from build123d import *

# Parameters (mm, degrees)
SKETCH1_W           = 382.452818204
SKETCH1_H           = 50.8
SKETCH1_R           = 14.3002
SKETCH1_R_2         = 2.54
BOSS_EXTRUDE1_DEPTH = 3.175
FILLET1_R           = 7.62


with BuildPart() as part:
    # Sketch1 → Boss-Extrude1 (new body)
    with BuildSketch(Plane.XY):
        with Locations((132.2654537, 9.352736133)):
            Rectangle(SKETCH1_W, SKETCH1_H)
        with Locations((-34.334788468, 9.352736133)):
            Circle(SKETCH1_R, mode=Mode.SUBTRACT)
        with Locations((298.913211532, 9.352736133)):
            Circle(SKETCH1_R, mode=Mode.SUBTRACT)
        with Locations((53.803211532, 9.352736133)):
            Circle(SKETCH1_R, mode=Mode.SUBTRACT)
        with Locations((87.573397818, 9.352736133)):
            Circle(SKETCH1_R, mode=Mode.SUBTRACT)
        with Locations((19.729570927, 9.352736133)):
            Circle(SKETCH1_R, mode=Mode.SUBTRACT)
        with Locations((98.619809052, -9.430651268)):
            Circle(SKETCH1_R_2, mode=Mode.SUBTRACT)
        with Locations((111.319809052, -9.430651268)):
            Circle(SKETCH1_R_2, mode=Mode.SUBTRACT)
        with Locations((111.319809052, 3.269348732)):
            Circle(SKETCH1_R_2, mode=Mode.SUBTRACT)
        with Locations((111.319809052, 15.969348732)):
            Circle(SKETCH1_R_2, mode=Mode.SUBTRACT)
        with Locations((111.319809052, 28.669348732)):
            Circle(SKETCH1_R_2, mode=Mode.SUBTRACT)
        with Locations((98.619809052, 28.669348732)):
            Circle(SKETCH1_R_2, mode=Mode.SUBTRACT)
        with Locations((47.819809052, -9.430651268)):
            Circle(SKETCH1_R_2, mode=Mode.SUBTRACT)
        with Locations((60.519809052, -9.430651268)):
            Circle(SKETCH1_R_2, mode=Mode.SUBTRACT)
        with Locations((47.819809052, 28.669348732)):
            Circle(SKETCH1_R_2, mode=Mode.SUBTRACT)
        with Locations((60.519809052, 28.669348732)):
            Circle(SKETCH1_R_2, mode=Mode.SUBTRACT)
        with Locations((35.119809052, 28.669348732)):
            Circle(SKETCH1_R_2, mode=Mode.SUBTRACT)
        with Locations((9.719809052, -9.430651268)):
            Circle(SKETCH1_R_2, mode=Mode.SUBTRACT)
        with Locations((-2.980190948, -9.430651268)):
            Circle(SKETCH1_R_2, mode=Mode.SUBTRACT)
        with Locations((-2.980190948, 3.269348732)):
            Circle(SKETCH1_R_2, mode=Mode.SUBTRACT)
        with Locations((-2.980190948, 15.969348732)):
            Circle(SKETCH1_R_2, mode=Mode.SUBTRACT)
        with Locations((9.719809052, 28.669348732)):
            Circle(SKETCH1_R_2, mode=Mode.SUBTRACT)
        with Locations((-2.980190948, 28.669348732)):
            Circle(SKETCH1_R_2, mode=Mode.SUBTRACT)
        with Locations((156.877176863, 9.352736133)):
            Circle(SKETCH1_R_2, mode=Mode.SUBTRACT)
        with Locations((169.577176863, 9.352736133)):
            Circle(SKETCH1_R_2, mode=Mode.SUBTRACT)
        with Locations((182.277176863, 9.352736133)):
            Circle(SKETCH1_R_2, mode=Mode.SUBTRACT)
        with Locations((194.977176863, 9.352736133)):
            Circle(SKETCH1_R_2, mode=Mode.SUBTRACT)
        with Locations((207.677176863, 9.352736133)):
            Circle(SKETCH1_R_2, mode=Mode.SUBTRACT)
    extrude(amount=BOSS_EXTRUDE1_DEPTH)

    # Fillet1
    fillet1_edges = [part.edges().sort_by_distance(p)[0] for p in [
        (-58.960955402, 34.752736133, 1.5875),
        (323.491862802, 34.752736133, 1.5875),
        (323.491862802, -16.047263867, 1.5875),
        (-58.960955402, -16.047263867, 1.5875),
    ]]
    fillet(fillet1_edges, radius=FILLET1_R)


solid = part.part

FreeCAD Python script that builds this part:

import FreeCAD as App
import Part
import Sketcher

V = App.Vector
Q = App.Units.Quantity


def edges_at(feature, points):
    """Names of the edges that pass closest to the given points."""
    edges = feature.Shape.Edges
    near = lambda p: min(range(len(edges)), key=lambda i: edges[i].distToShape(Part.Vertex(*p))[0])
    return sorted({f"Edge{near(p) + 1}" for p in points})

doc = App.newDocument("Part")
body = doc.addObject("PartDesign::Body", "Body")

# Sketch on XY plane
sketch1 = body.newObject("Sketcher::SketchObject", "Sketch")
sketch1.AttachmentSupport = (doc.getObject("XY_Plane"), [""])
sketch1.MapMode = "FlatFace"
sketch1.addGeometry(Part.LineSegment(V(-58.960955, 34.752736, 0), V(-58.960955, -16.047264, 0)), False)
sketch1.addGeometry(Part.LineSegment(V(-58.960955, -16.047264, 0), V(323.491863, -16.047264, 0)), False)
sketch1.addGeometry(Part.LineSegment(V(323.491863, -16.047264, 0), V(323.491863, 34.752736, 0)), False)
sketch1.addGeometry(Part.LineSegment(V(323.491863, 34.752736, 0), V(-58.960955, 34.752736, 0)), False)
sketch1.addGeometry(Part.Circle(V(-2.980191, -9.430651, 0), V(0, 0, 1), 2.54), False)
sketch1.addGeometry(Part.Circle(V(9.719809, -9.430651, 0), V(0, 0, 1), 2.54), False)
sketch1.addGeometry(Part.Circle(V(47.819809, -9.430651, 0), V(0, 0, 1), 2.54), False)
sketch1.addGeometry(Part.Circle(V(60.519809, -9.430651, 0), V(0, 0, 1), 2.54), False)
sketch1.addGeometry(Part.Circle(V(98.619809, -9.430651, 0), V(0, 0, 1), 2.54), False)
sketch1.addGeometry(Part.Circle(V(111.319809, -9.430651, 0), V(0, 0, 1), 2.54), False)
sketch1.addGeometry(Part.Circle(V(-2.980191, 3.269349, 0), V(0, 0, 1), 2.54), False)
sketch1.addGeometry(Part.Circle(V(-34.334788, 9.352736, 0), V(0, 0, 1), 14.3002), False)
sketch1.addGeometry(Part.Circle(V(19.729571, 9.352736, 0), V(0, 0, 1), 14.3002), False)
sketch1.addGeometry(Part.Circle(V(111.319809, 3.269349, 0), V(0, 0, 1), 2.54), False)
sketch1.addGeometry(Part.Circle(V(53.803212, 9.352736, 0), V(0, 0, 1), 14.3002), False)
sketch1.addGeometry(Part.Circle(V(87.573398, 9.352736, 0), V(0, 0, 1), 14.3002), False)
sketch1.addGeometry(Part.Circle(V(156.877177, 9.352736, 0), V(0, 0, 1), 2.54), False)
sketch1.addGeometry(Part.Circle(V(169.577177, 9.352736, 0), V(0, 0, 1), 2.54), False)
sketch1.addGeometry(Part.Circle(V(182.277177, 9.352736, 0), V(0, 0, 1), 2.54), False)
sketch1.addGeometry(Part.Circle(V(194.977177, 9.352736, 0), V(0, 0, 1), 2.54), False)
sketch1.addGeometry(Part.Circle(V(207.677177, 9.352736, 0), V(0, 0, 1), 2.54), False)
sketch1.addGeometry(Part.Circle(V(298.913212, 9.352736, 0), V(0, 0, 1), 14.3002), False)
sketch1.addGeometry(Part.Circle(V(-2.980191, 15.969349, 0), V(0, 0, 1), 2.54), False)
sketch1.addGeometry(Part.Circle(V(111.319809, 15.969349, 0), V(0, 0, 1), 2.54), False)
sketch1.addGeometry(Part.Circle(V(-2.980191, 28.669349, 0), V(0, 0, 1), 2.54), False)
sketch1.addGeometry(Part.Circle(V(9.719809, 28.669349, 0), V(0, 0, 1), 2.54), False)
sketch1.addGeometry(Part.Circle(V(35.119809, 28.669349, 0), V(0, 0, 1), 2.54), False)
sketch1.addGeometry(Part.Circle(V(47.819809, 28.669349, 0), V(0, 0, 1), 2.54), False)
sketch1.addGeometry(Part.Circle(V(60.519809, 28.669349, 0), V(0, 0, 1), 2.54), False)
sketch1.addGeometry(Part.Circle(V(98.619809, 28.669349, 0), V(0, 0, 1), 2.54), False)
sketch1.addGeometry(Part.Circle(V(111.319809, 28.669349, 0), V(0, 0, 1), 2.54), False)
sketch1.addConstraint(Sketcher.Constraint("Coincident", 0, 2, 1, 1))
sketch1.addConstraint(Sketcher.Constraint("Coincident", 1, 2, 2, 1))
sketch1.addConstraint(Sketcher.Constraint("Coincident", 2, 2, 3, 1))
sketch1.addConstraint(Sketcher.Constraint("Coincident", 3, 2, 0, 1))
sketch1.addConstraint(Sketcher.Constraint("Vertical", 0))
sketch1.addConstraint(Sketcher.Constraint("Horizontal", 1))
sketch1.addConstraint(Sketcher.Constraint("Vertical", 2))
sketch1.addConstraint(Sketcher.Constraint("Horizontal", 3))
sketch1.addConstraint(Sketcher.Constraint("Equal", 4, 5))
sketch1.addConstraint(Sketcher.Constraint("Equal", 5, 6))
sketch1.addConstraint(Sketcher.Constraint("Equal", 6, 7))
sketch1.addConstraint(Sketcher.Constraint("Equal", 7, 8))
sketch1.addConstraint(Sketcher.Constraint("Equal", 8, 9))
sketch1.addConstraint(Sketcher.Constraint("Equal", 9, 10))
sketch1.addConstraint(Sketcher.Constraint("Equal", 11, 12))
sketch1.addConstraint(Sketcher.Constraint("Equal", 10, 13))
sketch1.addConstraint(Sketcher.Constraint("Equal", 12, 14))
sketch1.addConstraint(Sketcher.Constraint("Equal", 14, 15))
sketch1.addConstraint(Sketcher.Constraint("Equal", 13, 16))
sketch1.addConstraint(Sketcher.Constraint("Equal", 16, 17))
sketch1.addConstraint(Sketcher.Constraint("Equal", 17, 18))
sketch1.addConstraint(Sketcher.Constraint("Equal", 18, 19))
sketch1.addConstraint(Sketcher.Constraint("Equal", 19, 20))
sketch1.addConstraint(Sketcher.Constraint("Equal", 15, 21))
sketch1.addConstraint(Sketcher.Constraint("Equal", 20, 22))
sketch1.addConstraint(Sketcher.Constraint("Equal", 22, 23))
sketch1.addConstraint(Sketcher.Constraint("Equal", 23, 24))
sketch1.addConstraint(Sketcher.Constraint("Equal", 24, 25))
sketch1.addConstraint(Sketcher.Constraint("Equal", 25, 26))
sketch1.addConstraint(Sketcher.Constraint("Equal", 26, 27))
sketch1.addConstraint(Sketcher.Constraint("Equal", 27, 28))
sketch1.addConstraint(Sketcher.Constraint("Equal", 28, 29))
sketch1.addConstraint(Sketcher.Constraint("Equal", 29, 30))
sketch1.addConstraint(Sketcher.Constraint("Horizontal", 4, 3, 5, 3))
sketch1.addConstraint(Sketcher.Constraint("Horizontal", 5, 3, 6, 3))
sketch1.addConstraint(Sketcher.Constraint("Horizontal", 6, 3, 7, 3))
sketch1.addConstraint(Sketcher.Constraint("Horizontal", 7, 3, 8, 3))
sketch1.addConstraint(Sketcher.Constraint("Horizontal", 8, 3, 9, 3))
sketch1.addConstraint(Sketcher.Constraint("Horizontal", 11, 3, 12, 3))
sketch1.addConstraint(Sketcher.Constraint("Horizontal", 10, 3, 13, 3))
sketch1.addConstraint(Sketcher.Constraint("Horizontal", 12, 3, 14, 3))
sketch1.addConstraint(Sketcher.Constraint("Horizontal", 14, 3, 15, 3))
sketch1.addConstraint(Sketcher.Constraint("Horizontal", 15, 3, 16, 3))
sketch1.addConstraint(Sketcher.Constraint("Horizontal", 16, 3, 17, 3))
sketch1.addConstraint(Sketcher.Constraint("Horizontal", 17, 3, 18, 3))
sketch1.addConstraint(Sketcher.Constraint("Horizontal", 18, 3, 19, 3))
sketch1.addConstraint(Sketcher.Constraint("Horizontal", 19, 3, 20, 3))
sketch1.addConstraint(Sketcher.Constraint("Horizontal", 20, 3, 21, 3))
sketch1.addConstraint(Sketcher.Constraint("Horizontal", 22, 3, 23, 3))
sketch1.addConstraint(Sketcher.Constraint("Horizontal", 24, 3, 25, 3))
sketch1.addConstraint(Sketcher.Constraint("Horizontal", 25, 3, 26, 3))
sketch1.addConstraint(Sketcher.Constraint("Horizontal", 26, 3, 27, 3))
sketch1.addConstraint(Sketcher.Constraint("Horizontal", 27, 3, 28, 3))
sketch1.addConstraint(Sketcher.Constraint("Horizontal", 28, 3, 29, 3))
sketch1.addConstraint(Sketcher.Constraint("Horizontal", 29, 3, 30, 3))
sketch1.addConstraint(Sketcher.Constraint("Vertical", 4, 3, 10, 3))
sketch1.addConstraint(Sketcher.Constraint("Vertical", 9, 3, 13, 3))
sketch1.addConstraint(Sketcher.Constraint("Vertical", 10, 3, 22, 3))
sketch1.addConstraint(Sketcher.Constraint("Vertical", 13, 3, 23, 3))
sketch1.addConstraint(Sketcher.Constraint("Vertical", 22, 3, 24, 3))
sketch1.addConstraint(Sketcher.Constraint("Vertical", 5, 3, 25, 3))
sketch1.addConstraint(Sketcher.Constraint("Vertical", 6, 3, 27, 3))
sketch1.addConstraint(Sketcher.Constraint("Vertical", 7, 3, 28, 3))
sketch1.addConstraint(Sketcher.Constraint("Vertical", 8, 3, 29, 3))
sketch1.addConstraint(Sketcher.Constraint("Vertical", 23, 3, 30, 3))
sketch1.addConstraint(Sketcher.Constraint("Diameter", 4, Q("0.2 in")))
sketch1.addConstraint(Sketcher.Constraint("DistanceY", 0, 2, 0, 1, Q("2 in")))
sketch1.addConstraint(Sketcher.Constraint("Diameter", 11, Q("1.126 in")))
sketch1.addConstraint(Sketcher.Constraint("DistanceX", 4, 3, 6, 3, Q("2 in")))
sketch1.addConstraint(Sketcher.Constraint("DistanceX", 5, 3, 7, 3, Q("2 in")))
sketch1.addConstraint(Sketcher.Constraint("DistanceX", 6, 3, 8, 3, Q("2 in")))
sketch1.addConstraint(Sketcher.Constraint("DistanceX", 7, 3, 9, 3, Q("2 in")))
sketch1.addConstraint(Sketcher.Constraint("DistanceX", 16, 3, 18, 3, Q("1 in")))
sketch1.addConstraint(Sketcher.Constraint("DistanceX", 17, 3, 19, 3, Q("1 in")))
sketch1.addConstraint(Sketcher.Constraint("DistanceX", 18, 3, 20, 3, Q("1 in")))
sketch1.addConstraint(Sketcher.Constraint("DistanceY", 4, 3, 22, 3, Q("1 in")))
sketch1.addConstraint(Sketcher.Constraint("DistanceY", 10, 3, 24, 3, Q("1 in")))
sketch1.addConstraint(Sketcher.Constraint("DistanceX", 25, 3, 26, 3, Q("1 in")))
sketch1.addConstraint(Sketcher.Constraint("DistanceY", 0, 2, 11, 3, Q("1 in")))
sketch1.addConstraint(Sketcher.Constraint("DistanceX", 4, 3, 5, 3, Q("0.5 in")))
sketch1.addConstraint(Sketcher.Constraint("DistanceY", 4, 3, 10, 3, Q("0.5 in")))
sketch1.addConstraint(Sketcher.Constraint("DistanceX", 16, 3, 17, 3, Q("0.5 in")))
sketch1.addConstraint(Sketcher.Constraint("DistanceX", -1, 1, 1, 2, Q("12.7359001 in")))
sketch1.addConstraint(Sketcher.Constraint("DistanceX", 1, 1, 1, 2, Q("382.452818 mm")))
sketch1.addConstraint(Sketcher.Constraint("DistanceX", 4, 3, -1, 1, Q("2.980191 mm")))
sketch1.addConstraint(Sketcher.Constraint("DistanceY", 4, 3, -1, 1, Q("9.430651 mm")))
sketch1.addConstraint(Sketcher.Constraint("DistanceX", 11, 3, -1, 1, Q("34.334788 mm")))
sketch1.addConstraint(Sketcher.Constraint("DistanceX", -1, 1, 12, 3, Q("19.729571 mm")))
sketch1.addConstraint(Sketcher.Constraint("DistanceX", -1, 1, 14, 3, Q("53.803212 mm")))
sketch1.addConstraint(Sketcher.Constraint("DistanceX", -1, 1, 21, 3, Q("298.913212 mm")))
sketch1.addConstraint(Sketcher.Constraint("DistanceX", 15, 3, 8, 3, Q("11.046411 mm")))
sketch1.addConstraint(Sketcher.Constraint("DistanceX", 15, 3, 16, 3, Q("69.303779 mm")))
sketch1.addConstraint(Sketcher.Constraint("DistanceY", -1, 1, 11, 3, Q("9.352736 mm")))
pad1 = body.newObject("PartDesign::Pad", "Pad")
pad1.Profile = sketch1
pad1.Length = Q("0.125 in")
doc.recompute()

fillet = body.newObject("PartDesign::Fillet", "Fillet")
fillet.Base = (pad1, edges_at(pad1, [
    (-58.961, 34.753, 1.587),
    (323.492, 34.753, 1.587),
    (323.492, -16.047, 1.587),
    (-58.961, -16.047, 1.587),
]))
fillet.Radius = Q("0.3 in")

doc.recompute()
